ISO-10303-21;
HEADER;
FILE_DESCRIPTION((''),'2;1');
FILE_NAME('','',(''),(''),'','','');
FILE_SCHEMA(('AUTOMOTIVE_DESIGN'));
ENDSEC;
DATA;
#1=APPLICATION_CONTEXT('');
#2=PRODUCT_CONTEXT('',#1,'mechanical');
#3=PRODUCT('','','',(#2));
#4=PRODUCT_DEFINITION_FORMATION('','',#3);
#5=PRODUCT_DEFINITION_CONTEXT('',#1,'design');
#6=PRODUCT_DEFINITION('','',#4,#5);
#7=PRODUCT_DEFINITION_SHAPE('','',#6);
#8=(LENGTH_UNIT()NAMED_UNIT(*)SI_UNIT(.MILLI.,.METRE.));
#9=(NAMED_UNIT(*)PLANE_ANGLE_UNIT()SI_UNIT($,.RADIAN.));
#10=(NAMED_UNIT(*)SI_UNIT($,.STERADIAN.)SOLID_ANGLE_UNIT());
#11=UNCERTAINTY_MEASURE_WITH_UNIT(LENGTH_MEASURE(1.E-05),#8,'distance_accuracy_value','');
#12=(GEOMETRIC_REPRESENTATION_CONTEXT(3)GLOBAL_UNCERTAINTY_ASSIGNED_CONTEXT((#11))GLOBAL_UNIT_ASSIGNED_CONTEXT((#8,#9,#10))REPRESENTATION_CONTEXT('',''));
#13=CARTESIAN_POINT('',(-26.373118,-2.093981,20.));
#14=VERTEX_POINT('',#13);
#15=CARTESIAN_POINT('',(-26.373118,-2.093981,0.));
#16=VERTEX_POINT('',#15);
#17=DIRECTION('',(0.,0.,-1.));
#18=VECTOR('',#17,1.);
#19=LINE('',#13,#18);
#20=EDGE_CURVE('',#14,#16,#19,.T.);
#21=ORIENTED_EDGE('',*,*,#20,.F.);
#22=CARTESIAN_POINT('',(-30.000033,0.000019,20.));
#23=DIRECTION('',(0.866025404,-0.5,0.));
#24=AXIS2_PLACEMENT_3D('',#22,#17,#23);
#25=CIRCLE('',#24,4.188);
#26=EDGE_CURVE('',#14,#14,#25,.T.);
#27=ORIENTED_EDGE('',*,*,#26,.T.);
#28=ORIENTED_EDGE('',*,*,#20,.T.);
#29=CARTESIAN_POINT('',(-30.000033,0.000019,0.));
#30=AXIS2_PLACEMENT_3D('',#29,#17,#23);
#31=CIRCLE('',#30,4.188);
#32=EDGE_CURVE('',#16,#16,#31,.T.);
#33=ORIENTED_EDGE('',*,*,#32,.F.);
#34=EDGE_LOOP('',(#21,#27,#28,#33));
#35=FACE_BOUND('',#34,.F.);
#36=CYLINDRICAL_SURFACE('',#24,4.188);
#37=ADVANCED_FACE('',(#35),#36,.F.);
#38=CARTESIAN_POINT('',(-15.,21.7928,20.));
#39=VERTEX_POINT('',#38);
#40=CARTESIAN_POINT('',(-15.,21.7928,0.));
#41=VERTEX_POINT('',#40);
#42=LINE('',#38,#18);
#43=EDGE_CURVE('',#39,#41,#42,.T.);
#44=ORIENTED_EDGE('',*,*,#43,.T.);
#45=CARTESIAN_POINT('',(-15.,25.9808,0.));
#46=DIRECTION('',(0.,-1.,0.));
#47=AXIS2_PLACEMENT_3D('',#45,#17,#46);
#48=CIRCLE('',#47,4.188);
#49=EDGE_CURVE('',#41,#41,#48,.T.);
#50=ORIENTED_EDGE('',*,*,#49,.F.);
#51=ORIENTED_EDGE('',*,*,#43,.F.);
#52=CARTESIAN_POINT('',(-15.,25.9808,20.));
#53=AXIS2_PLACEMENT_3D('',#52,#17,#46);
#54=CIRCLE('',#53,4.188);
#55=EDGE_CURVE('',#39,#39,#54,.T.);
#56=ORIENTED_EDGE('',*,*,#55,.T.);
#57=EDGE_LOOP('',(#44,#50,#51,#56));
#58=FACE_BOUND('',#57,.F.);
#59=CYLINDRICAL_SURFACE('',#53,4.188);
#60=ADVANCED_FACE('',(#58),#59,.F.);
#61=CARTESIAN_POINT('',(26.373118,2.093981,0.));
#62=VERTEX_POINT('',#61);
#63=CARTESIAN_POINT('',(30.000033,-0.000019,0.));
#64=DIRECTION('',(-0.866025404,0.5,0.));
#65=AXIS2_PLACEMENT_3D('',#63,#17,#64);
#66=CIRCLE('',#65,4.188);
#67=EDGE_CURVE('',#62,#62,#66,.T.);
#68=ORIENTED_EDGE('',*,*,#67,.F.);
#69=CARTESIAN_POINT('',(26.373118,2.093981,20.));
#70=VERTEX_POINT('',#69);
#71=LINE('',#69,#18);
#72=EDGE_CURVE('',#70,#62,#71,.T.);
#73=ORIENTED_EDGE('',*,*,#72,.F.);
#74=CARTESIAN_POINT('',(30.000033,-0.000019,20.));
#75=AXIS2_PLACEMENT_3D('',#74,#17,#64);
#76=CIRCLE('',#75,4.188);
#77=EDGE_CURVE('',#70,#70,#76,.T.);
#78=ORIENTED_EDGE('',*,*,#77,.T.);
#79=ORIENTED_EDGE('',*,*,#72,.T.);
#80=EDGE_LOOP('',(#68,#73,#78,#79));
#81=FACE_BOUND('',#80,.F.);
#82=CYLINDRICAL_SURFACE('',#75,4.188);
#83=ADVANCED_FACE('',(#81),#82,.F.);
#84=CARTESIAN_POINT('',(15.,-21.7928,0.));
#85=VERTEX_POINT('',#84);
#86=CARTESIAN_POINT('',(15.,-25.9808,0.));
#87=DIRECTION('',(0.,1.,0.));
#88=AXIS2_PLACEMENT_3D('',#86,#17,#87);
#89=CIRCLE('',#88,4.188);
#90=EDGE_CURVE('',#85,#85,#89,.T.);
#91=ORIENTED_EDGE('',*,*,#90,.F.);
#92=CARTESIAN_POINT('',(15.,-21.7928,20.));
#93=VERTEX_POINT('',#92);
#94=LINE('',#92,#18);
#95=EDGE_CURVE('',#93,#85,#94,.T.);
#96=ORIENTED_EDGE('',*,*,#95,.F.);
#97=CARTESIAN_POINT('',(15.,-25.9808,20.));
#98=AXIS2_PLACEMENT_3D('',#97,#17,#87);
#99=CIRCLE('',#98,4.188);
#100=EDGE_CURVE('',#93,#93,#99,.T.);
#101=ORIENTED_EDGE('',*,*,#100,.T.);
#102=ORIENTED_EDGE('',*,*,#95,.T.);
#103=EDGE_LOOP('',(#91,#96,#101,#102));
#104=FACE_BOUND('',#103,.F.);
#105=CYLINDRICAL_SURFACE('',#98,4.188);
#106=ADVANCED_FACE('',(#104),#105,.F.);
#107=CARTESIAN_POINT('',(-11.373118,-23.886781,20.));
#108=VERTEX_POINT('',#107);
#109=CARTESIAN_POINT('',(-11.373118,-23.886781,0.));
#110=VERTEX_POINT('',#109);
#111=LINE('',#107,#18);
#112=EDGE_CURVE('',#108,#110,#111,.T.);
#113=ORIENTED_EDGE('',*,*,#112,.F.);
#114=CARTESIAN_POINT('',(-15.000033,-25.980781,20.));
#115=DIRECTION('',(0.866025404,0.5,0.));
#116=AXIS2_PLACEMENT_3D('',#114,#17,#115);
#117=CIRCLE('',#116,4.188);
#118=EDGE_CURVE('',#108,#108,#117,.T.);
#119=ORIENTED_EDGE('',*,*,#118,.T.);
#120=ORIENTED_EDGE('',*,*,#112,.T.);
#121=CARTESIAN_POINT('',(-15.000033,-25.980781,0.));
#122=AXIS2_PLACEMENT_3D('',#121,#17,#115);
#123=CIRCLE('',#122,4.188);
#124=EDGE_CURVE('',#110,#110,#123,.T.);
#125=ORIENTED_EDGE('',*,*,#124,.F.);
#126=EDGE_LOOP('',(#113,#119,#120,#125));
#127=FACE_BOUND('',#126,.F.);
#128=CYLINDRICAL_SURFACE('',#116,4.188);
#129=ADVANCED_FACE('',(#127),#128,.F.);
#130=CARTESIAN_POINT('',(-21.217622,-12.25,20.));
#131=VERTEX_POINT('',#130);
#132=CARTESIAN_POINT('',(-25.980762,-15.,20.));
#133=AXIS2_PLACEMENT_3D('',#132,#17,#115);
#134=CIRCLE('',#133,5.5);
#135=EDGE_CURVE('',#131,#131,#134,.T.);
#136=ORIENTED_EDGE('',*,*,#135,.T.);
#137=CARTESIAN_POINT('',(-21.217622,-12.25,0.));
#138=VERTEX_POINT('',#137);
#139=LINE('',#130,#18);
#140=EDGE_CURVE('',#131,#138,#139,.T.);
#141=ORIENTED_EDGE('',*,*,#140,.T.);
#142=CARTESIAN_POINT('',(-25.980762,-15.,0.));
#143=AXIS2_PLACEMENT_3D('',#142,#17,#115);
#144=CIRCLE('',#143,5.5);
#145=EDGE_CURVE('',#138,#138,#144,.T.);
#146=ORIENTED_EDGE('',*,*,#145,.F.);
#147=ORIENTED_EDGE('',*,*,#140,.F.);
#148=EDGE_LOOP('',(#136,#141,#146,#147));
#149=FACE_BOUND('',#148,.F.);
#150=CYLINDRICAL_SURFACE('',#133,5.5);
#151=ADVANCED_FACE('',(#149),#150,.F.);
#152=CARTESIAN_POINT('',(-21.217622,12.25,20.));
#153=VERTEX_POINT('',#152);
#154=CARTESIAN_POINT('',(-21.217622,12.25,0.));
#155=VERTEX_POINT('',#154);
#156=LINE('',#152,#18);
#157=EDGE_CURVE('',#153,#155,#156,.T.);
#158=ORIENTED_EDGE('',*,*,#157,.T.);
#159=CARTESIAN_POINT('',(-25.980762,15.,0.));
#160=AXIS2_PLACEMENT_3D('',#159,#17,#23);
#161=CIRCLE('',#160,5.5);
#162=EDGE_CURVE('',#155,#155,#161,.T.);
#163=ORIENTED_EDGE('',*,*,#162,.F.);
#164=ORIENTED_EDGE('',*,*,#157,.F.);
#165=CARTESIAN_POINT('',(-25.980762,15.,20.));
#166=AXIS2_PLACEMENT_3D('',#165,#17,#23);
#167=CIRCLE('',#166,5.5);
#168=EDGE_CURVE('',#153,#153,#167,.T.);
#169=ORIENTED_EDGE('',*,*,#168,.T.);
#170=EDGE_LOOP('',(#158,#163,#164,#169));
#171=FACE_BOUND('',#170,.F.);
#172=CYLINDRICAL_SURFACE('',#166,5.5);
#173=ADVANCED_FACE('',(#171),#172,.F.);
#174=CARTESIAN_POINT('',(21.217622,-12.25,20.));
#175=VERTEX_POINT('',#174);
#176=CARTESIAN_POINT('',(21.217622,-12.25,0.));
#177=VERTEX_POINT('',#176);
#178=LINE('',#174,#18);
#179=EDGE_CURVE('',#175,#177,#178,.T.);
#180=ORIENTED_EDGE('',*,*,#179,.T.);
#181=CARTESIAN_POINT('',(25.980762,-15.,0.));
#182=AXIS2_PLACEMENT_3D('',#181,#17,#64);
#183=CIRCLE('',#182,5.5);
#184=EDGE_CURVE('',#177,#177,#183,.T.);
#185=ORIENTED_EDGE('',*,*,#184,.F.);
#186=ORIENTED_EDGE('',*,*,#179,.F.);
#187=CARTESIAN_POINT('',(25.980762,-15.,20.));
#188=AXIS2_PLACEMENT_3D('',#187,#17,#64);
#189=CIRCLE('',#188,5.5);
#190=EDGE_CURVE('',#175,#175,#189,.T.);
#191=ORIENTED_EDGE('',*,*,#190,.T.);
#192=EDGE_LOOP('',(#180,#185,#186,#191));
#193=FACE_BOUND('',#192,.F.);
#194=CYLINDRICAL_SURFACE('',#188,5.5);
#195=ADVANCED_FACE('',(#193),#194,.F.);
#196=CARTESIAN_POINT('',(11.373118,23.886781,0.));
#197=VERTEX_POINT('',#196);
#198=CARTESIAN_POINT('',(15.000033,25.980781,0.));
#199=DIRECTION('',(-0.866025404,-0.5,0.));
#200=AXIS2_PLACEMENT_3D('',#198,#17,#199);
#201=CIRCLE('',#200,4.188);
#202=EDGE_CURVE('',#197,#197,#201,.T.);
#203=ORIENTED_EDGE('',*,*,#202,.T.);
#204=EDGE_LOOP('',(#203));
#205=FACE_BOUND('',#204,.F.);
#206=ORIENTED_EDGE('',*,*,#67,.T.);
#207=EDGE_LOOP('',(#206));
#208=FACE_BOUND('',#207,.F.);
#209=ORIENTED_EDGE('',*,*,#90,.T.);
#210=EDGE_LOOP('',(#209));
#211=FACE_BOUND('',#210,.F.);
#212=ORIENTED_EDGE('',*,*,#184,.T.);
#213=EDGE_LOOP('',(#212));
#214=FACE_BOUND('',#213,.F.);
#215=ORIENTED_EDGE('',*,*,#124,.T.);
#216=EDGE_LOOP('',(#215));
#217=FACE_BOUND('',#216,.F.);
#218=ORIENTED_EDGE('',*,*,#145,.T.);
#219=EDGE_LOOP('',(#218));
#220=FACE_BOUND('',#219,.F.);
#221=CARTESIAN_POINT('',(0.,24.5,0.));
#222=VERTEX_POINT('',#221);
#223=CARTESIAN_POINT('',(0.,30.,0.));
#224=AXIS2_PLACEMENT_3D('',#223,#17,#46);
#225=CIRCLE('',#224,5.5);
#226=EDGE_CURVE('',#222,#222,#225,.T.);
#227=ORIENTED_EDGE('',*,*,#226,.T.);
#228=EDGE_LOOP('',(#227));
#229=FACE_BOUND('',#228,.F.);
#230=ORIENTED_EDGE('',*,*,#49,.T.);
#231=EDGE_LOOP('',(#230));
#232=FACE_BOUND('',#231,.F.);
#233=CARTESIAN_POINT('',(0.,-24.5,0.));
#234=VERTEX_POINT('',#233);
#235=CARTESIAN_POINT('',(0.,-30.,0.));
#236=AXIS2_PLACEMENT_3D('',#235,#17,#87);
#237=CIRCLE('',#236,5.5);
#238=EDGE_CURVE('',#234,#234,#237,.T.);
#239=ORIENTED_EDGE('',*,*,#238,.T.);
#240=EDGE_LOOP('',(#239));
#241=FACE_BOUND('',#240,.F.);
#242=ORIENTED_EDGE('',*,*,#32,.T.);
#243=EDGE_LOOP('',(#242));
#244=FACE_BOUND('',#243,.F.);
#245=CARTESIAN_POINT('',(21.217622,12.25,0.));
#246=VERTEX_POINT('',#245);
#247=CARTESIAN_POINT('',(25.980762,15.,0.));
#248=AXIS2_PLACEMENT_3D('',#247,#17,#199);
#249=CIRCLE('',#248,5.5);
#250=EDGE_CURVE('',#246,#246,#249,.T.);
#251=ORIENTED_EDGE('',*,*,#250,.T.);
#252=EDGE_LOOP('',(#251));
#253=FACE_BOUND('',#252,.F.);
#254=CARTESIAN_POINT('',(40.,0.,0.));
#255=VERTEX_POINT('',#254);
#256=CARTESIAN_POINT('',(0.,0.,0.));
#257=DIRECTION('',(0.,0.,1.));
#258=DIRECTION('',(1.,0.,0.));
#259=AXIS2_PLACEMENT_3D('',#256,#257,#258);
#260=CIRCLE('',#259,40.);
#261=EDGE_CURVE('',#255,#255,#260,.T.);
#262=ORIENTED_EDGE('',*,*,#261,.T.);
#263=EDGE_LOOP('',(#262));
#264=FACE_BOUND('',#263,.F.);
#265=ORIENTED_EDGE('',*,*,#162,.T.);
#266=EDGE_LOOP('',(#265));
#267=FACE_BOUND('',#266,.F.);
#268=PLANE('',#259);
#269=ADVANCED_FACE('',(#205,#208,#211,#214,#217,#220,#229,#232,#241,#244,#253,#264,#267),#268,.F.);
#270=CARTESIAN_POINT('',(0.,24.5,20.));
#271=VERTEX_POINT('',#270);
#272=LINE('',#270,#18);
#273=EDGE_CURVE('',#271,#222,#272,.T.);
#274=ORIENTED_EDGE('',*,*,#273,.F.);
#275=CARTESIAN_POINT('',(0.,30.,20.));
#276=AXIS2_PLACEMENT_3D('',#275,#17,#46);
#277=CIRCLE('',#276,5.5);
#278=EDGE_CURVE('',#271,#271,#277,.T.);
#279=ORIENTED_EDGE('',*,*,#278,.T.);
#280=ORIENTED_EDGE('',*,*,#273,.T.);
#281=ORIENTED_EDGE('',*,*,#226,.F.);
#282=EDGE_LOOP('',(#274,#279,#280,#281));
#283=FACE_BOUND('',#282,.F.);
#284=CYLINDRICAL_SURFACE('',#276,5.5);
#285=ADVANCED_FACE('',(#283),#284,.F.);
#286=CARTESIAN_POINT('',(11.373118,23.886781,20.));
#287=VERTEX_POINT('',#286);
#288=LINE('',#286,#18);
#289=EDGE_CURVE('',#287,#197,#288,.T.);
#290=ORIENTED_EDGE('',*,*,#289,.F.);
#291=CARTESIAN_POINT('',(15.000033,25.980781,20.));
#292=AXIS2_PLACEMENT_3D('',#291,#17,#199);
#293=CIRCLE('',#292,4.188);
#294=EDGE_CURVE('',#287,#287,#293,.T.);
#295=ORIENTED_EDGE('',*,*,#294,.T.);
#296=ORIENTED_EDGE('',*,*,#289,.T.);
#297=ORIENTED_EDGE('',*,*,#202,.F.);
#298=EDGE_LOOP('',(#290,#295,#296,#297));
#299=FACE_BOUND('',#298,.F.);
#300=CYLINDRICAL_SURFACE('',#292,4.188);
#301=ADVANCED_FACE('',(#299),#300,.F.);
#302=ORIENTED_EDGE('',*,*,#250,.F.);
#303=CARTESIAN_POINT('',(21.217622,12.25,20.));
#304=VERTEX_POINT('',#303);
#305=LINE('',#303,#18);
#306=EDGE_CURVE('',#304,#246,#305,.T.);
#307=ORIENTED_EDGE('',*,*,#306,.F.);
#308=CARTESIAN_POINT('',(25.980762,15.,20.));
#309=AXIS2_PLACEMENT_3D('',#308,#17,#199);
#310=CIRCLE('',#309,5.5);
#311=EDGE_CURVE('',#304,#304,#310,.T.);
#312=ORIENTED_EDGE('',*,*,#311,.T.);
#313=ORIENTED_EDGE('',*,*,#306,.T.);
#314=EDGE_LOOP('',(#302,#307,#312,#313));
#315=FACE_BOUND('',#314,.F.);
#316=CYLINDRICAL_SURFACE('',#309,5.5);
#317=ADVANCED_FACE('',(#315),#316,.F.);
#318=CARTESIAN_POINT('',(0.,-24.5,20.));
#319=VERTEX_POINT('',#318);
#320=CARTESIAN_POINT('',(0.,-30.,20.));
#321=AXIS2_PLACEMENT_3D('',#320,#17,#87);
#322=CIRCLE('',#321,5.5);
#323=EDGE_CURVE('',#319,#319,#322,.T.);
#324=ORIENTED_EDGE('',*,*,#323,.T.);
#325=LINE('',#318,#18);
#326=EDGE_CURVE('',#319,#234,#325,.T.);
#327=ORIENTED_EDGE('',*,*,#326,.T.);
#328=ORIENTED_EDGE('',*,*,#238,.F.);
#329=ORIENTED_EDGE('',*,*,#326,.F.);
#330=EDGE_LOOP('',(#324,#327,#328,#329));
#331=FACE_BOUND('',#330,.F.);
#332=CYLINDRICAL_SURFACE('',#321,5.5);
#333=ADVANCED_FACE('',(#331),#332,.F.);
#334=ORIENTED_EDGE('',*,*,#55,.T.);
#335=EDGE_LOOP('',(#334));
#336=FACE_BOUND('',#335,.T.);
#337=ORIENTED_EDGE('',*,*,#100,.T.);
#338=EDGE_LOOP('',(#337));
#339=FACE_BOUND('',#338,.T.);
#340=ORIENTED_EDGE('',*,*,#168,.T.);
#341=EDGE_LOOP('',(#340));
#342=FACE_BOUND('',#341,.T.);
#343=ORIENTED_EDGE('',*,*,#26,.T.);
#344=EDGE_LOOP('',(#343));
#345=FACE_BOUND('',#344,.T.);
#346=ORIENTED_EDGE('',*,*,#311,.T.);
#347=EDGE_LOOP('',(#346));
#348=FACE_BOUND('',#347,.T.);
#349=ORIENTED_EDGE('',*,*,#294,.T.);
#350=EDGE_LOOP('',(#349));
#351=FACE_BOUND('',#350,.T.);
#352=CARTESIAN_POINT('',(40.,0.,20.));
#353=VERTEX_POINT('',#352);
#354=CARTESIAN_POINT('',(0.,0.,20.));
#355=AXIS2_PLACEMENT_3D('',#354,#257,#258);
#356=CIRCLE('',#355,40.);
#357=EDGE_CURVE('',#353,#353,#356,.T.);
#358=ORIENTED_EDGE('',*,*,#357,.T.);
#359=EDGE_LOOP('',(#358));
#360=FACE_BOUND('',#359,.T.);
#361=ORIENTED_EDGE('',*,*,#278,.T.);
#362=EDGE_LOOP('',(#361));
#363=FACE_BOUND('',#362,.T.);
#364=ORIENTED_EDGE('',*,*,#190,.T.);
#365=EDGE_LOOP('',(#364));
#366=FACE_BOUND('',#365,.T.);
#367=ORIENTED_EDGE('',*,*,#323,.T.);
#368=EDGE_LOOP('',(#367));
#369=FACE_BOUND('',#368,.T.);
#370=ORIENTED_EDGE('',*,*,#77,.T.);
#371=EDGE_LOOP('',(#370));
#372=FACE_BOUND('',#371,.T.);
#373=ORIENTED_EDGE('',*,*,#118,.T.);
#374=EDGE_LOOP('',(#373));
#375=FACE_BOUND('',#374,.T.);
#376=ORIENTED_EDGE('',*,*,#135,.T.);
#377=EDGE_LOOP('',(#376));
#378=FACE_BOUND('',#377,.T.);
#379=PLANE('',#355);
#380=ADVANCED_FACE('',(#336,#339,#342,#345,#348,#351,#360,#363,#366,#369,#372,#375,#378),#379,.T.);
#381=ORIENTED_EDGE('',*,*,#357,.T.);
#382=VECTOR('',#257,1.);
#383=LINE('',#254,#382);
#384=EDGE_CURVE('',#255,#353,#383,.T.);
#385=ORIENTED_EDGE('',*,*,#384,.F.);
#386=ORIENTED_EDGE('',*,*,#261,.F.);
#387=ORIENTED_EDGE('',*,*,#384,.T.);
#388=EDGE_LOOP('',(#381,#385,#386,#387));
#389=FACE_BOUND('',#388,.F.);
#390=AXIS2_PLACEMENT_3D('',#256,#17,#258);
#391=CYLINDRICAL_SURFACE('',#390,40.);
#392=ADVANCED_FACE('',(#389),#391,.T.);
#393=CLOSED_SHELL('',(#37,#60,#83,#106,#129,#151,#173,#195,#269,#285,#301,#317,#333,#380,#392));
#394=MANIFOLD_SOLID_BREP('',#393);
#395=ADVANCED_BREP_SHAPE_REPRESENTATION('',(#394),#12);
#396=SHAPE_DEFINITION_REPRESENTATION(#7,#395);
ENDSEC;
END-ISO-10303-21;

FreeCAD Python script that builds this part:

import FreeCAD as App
import Part
import Sketcher

V = App.Vector

doc = App.newDocument("Part")
body = doc.addObject("PartDesign::Body", "Body")

# Sketch on XY plane
sketch1 = body.newObject("Sketcher::SketchObject", "Sketch")
sketch1.AttachmentSupport = (doc.getObject("XY_Plane"), [""])
sketch1.MapMode = "FlatFace"
sketch1.addGeometry(Part.Circle(V(0, 0, 0), V(0, 0, 1), 40), False)
sketch1.addConstraint(Sketcher.Constraint("Coincident", 0, 3, -1, 1))
sketch1.addConstraint(Sketcher.Constraint("Diameter", 0, 80.0))
pad1 = body.newObject("PartDesign::Pad", "Pad")
pad1.Profile = sketch1
pad1.Length = 20

# Sketch on XY plane
sketch2 = body.newObject("Sketcher::SketchObject", "Sketch001")
sketch2.AttachmentSupport = (doc.getObject("XY_Plane"), [""])
sketch2.MapMode = "FlatFace"
sketch2.AttachmentOffset = App.Placement(V(0, 0, 20), App.Rotation())
sketch2.addGeometry(Part.Circle(V(0, 30, 0), V(0, 0, 1), 6), False)
sketch2.addConstraint(Sketcher.Constraint("PointOnObject", 0, 3, -2))
sketch2.addConstraint(Sketcher.Constraint("Diameter", 0, 11.0))
sketch2.addConstraint(Sketcher.Constraint("DistanceY", -1, 1, 0, 3, 30.0))
doc.recompute()
hole = body.newObject("PartDesign::Hole", "Hole")
hole.Profile = sketch2
hole.ThreadType = "None"
hole.Diameter = 11
hole.DepthType = "ThroughAll"
doc.recompute()

polarpattern = body.newObject("PartDesign::PolarPattern", "PolarPattern")
polarpattern.Originals = [hole]
polarpattern.Axis = (doc.getObject("Z_Axis"), [""])
polarpattern.Angle = 360
polarpattern.Occurrences = 6
body.Tip = polarpattern

# Sketch on XY plane
sketch3 = body.newObject("Sketcher::SketchObject", "Sketch002")
sketch3.AttachmentSupport = (doc.getObject("XY_Plane"), [""])
sketch3.MapMode = "FlatFace"
sketch3.AttachmentOffset = App.Placement(V(0, 0, 20), App.Rotation())
sketch3.addGeometry(Part.Circle(V(-15, 26, 0), V(0, 0, 1), 4.2), False)
sketch3.addConstraint(Sketcher.Constraint("Diameter", 0, 8.376))
sketch3.addConstraint(Sketcher.Constraint("DistanceX", 0, 3, -1, 1, 15.0))
sketch3.addConstraint(Sketcher.Constraint("DistanceY", -1, 1, 0, 3, 25.9808))
doc.recompute()
hole2 = body.newObject("PartDesign::Hole", "Hole001")
hole2.Profile = sketch3
hole2.ThreadType = "None"
hole2.Diameter = 8.376
hole2.DepthType = "ThroughAll"
doc.recompute()

polarpattern2 = body.newObject("PartDesign::PolarPattern", "PolarPattern001")
polarpattern2.Originals = [hole2]
polarpattern2.Axis = (doc.getObject("Z_Axis"), [""])
polarpattern2.Angle = 360
polarpattern2.Occurrences = 6
body.Tip = polarpattern2

doc.recompute()
